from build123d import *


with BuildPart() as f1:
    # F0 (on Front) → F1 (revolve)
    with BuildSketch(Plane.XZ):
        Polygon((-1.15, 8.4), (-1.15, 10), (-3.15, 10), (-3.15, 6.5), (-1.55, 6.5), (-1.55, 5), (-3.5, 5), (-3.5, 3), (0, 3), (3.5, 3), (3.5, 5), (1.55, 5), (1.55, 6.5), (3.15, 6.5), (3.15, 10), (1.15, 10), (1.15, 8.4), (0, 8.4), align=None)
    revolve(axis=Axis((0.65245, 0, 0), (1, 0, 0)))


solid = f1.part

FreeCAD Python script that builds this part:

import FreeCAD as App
import Part
import Sketcher
from FreeCAD import Vector

doc = App.newDocument("Part")
body = doc.addObject("PartDesign::Body", "Body")

sketch1 = doc.addObject("Sketcher::SketchObject", "Sketch")
body.addObject(sketch1)
sketch1.AttachmentSupport = (doc.XZ_Plane, [""])
sketch1.MapMode = "FlatFace"
sketch1.addGeometry(Part.LineSegment(Vector(-1.15, 8.4, 0), Vector(-1.15, 10, 0)), False)
sketch1.addGeometry(Part.LineSegment(Vector(-1.15, 10, 0), Vector(-3.15, 10, 0)), False)
sketch1.addGeometry(Part.LineSegment(Vector(-3.15, 10, 0), Vector(-3.15, 6.5, 0)), False)
sketch1.addGeometry(Part.LineSegment(Vector(-3.15, 6.5, 0), Vector(-1.55, 6.5, 0)), False)
sketch1.addGeometry(Part.LineSegment(Vector(-1.55, 6.5, 0), Vector(-1.55, 5, 0)), False)
sketch1.addGeometry(Part.LineSegment(Vector(-1.55, 5, 0), Vector(-3.5, 5, 0)), False)
sketch1.addGeometry(Part.LineSegment(Vector(-3.5, 5, 0), Vector(-3.5, 3, 0)), False)
sketch1.addGeometry(Part.LineSegment(Vector(-3.5, 3, 0), Vector(3.5, 3, 0)), False)
sketch1.addGeometry(Part.LineSegment(Vector(3.5, 3, 0), Vector(3.5, 5, 0)), False)
sketch1.addGeometry(Part.LineSegment(Vector(3.5, 5, 0), Vector(1.55, 5, 0)), False)
sketch1.addGeometry(Part.LineSegment(Vector(1.55, 5, 0), Vector(1.55, 6.5, 0)), False)
sketch1.addGeometry(Part.LineSegment(Vector(1.55, 6.5, 0), Vector(3.15, 6.5, 0)), False)
sketch1.addGeometry(Part.LineSegment(Vector(3.15, 6.5, 0), Vector(3.15, 10, 0)), False)
sketch1.addGeometry(Part.LineSegment(Vector(3.15, 10, 0), Vector(1.15, 10, 0)), False)
sketch1.addGeometry(Part.LineSegment(Vector(1.15, 10, 0), Vector(1.15, 8.4, 0)), False)
sketch1.addGeometry(Part.LineSegment(Vector(1.15, 8.4, 0), Vector(-1.15, 8.4, 0)), False)
sketch1.addConstraint(Sketcher.Constraint("Coincident", 0, 2, 1, 1))
sketch1.addConstraint(Sketcher.Constraint("Coincident", 1, 2, 2, 1))
sketch1.addConstraint(Sketcher.Constraint("Coincident", 2, 2, 3, 1))
sketch1.addConstraint(Sketcher.Constraint("Coincident", 3, 2, 4, 1))
sketch1.addConstraint(Sketcher.Constraint("Coincident", 4, 2, 5, 1))
sketch1.addConstraint(Sketcher.Constraint("Coincident", 5, 2, 6, 1))
sketch1.addConstraint(Sketcher.Constraint("Coincident", 6, 2, 7, 1))
sketch1.addConstraint(Sketcher.Constraint("Coincident", 7, 2, 8, 1))
sketch1.addConstraint(Sketcher.Constraint("Coincident", 8, 2, 9, 1))
sketch1.addConstraint(Sketcher.Constraint("Coincident", 9, 2, 10, 1))
sketch1.addConstraint(Sketcher.Constraint("Coincident", 10, 2, 11, 1))
sketch1.addConstraint(Sketcher.Constraint("Coincident", 11, 2, 12, 1))
sketch1.addConstraint(Sketcher.Constraint("Coincident", 12, 2, 13, 1))
sketch1.addConstraint(Sketcher.Constraint("Coincident", 13, 2, 14, 1))
sketch1.addConstraint(Sketcher.Constraint("Coincident", 14, 2, 15, 1))
sketch1.addConstraint(Sketcher.Constraint("Coincident", 15, 2, 0, 1))
sketch1.addConstraint(Sketcher.Constraint("Vertical", 0))
sketch1.addConstraint(Sketcher.Constraint("Horizontal", 1))
sketch1.addConstraint(Sketcher.Constraint("Vertical", 2))
sketch1.addConstraint(Sketcher.Constraint("Horizontal", 3))
sketch1.addConstraint(Sketcher.Constraint("Vertical", 4))
sketch1.addConstraint(Sketcher.Constraint("Horizontal", 5))
sketch1.addConstraint(Sketcher.Constraint("Vertical", 6))
sketch1.addConstraint(Sketcher.Constraint("Horizontal", 7))
sketch1.addConstraint(Sketcher.Constraint("Vertical", 8))
sketch1.addConstraint(Sketcher.Constraint("Horizontal", 9))
sketch1.addConstraint(Sketcher.Constraint("Vertical", 10))
sketch1.addConstraint(Sketcher.Constraint("Horizontal", 11))
sketch1.addConstraint(Sketcher.Constraint("Vertical", 12))
sketch1.addConstraint(Sketcher.Constraint("Horizontal", 13))
sketch1.addConstraint(Sketcher.Constraint("Vertical", 14))
sketch1.addConstraint(Sketcher.Constraint("Horizontal", 15))
sketch1.addConstraint(Sketcher.Constraint("Symmetric", 5, 2, 8, 2, -2))
sketch1.addConstraint(Sketcher.Constraint("Symmetric", 3, 2, 10, 2, -2))
sketch1.addConstraint(Sketcher.Constraint("Symmetric", 1, 2, 12, 2, -2))
sketch1.addConstraint(Sketcher.Constraint("Equal", 1, 13))
sketch1.addConstraint(Sketcher.Constraint("Equal", 11, 0))
sketch1.addConstraint(Sketcher.Constraint("Equal", 13, 6))
sketch1.addConstraint(Sketcher.Constraint("DistanceX", 1, 2, 1, 1, 2.0))
sketch1.addConstraint(Sketcher.Constraint("DistanceX", 7, 1, 7, 2, 7.0))
sketch1.addConstraint(Sketcher.Constraint("DistanceX", 3, 1, 3, 2, 1.6))
sketch1.addConstraint(Sketcher.Constraint("DistanceX", 15, 2, 15, 1, 2.3))
sketch1.addConstraint(Sketcher.Constraint("DistanceY", 2, 2, 2, 1, 3.5))
sketch1.addConstraint(Sketcher.Constraint("DistanceY", 4, 2, 4, 1, 1.5))
sketch1.addConstraint(Sketcher.Constraint("DistanceY", -1, 1, 0, 2, 10.0))
revolution = doc.addObject("PartDesign::Revolution", "Revolution")
body.addObject(revolution)
revolution.Profile = sketch1
revolution.ReferenceAxis = (sketch1, ["H_Axis"])
revolution.Angle = 360

doc.recompute()
